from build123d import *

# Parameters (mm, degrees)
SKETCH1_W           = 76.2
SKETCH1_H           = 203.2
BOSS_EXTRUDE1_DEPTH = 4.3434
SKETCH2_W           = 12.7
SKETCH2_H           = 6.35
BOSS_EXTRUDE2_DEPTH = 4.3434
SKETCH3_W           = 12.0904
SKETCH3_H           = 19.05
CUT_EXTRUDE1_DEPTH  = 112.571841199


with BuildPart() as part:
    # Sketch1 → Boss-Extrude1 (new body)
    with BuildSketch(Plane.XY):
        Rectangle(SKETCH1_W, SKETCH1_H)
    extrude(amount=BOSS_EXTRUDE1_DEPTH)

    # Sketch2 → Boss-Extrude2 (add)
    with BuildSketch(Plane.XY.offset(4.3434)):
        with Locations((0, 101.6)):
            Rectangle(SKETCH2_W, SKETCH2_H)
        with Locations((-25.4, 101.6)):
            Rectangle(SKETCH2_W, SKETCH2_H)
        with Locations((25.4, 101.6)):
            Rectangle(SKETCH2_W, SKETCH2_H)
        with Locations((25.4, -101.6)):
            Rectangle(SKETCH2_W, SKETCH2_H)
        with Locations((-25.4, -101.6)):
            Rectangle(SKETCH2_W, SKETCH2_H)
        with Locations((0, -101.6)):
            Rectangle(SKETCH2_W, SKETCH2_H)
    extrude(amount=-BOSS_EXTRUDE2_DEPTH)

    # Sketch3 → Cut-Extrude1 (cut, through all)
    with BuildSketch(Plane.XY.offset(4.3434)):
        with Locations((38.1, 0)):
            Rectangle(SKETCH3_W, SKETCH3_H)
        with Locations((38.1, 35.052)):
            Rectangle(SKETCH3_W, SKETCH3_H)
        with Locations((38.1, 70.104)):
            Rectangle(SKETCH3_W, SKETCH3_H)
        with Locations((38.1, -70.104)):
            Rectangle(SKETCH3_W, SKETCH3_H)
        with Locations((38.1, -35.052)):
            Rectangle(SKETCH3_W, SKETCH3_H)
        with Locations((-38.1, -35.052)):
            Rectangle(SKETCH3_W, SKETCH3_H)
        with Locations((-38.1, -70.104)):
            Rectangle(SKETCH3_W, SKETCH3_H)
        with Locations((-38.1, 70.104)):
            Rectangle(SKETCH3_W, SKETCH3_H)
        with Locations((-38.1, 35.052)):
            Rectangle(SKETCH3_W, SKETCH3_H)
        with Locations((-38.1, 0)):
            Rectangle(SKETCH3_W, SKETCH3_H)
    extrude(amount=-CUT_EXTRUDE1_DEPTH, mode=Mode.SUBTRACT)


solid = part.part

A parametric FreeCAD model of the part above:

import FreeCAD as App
import Part
import Sketcher
from FreeCAD import Vector
Q = App.Units.Quantity

doc = App.newDocument("Part")
params = doc.addObject("Spreadsheet::Sheet", "Params")
for row, (alias, value) in enumerate([
    ("sketch1_width", "3 in"),
    ("sketch1_height", "8 in"),
    ("pad1_length", "0.171 in"),
    ("sketch2_width", "0.5 in"),
    ("sketch2_height", "0.25 in"),
    ("pad2_length", "0.171 in"),
    ("sketch3_height", "0.75 in"),
    ("sketch3_width", "0.476 in"),
], start=1):
    params.set(f"A{row}", alias)
    params.set(f"B{row}", "=" + value)
    params.setAlias(f"B{row}", alias)

body = doc.addObject("PartDesign::Body", "Body")

sketch1 = body.newObject("Sketcher::SketchObject", "Sketch")
sketch1.AttachmentSupport = (doc.getObject("XY_Plane"), [""])
sketch1.MapMode = "FlatFace"
sketch1.addGeometry(Part.LineSegment(Vector(-38.1, 101.6, 0), Vector(-38.1, -101.6, 0)), False)
sketch1.addGeometry(Part.LineSegment(Vector(-38.1, -101.6, 0), Vector(38.1, -101.6, 0)), False)
sketch1.addGeometry(Part.LineSegment(Vector(38.1, -101.6, 0), Vector(38.1, 101.6, 0)), False)
sketch1.addGeometry(Part.LineSegment(Vector(38.1, 101.6, 0), Vector(-38.1, 101.6, 0)), False)
sketch1.addConstraint(Sketcher.Constraint("Coincident", 0, 2, 1, 1))
sketch1.addConstraint(Sketcher.Constraint("Coincident", 1, 2, 2, 1))
sketch1.addConstraint(Sketcher.Constraint("Coincident", 2, 2, 3, 1))
sketch1.addConstraint(Sketcher.Constraint("Coincident", 3, 2, 0, 1))
sketch1.addConstraint(Sketcher.Constraint("Vertical", 0))
sketch1.addConstraint(Sketcher.Constraint("Horizontal", 1))
sketch1.addConstraint(Sketcher.Constraint("Vertical", 2))
sketch1.addConstraint(Sketcher.Constraint("Horizontal", 3))
sketch1.addConstraint(Sketcher.Constraint("Symmetric", 0, 2, 2, 2, -1, 1))
sketch1.addConstraint(Sketcher.Constraint("DistanceX", 1, 1, 1, 2, Q("3 in")))
sketch1.addConstraint(Sketcher.Constraint("DistanceY", 0, 2, 0, 1, Q("8 in")))
sketch1.setExpression("Constraints[9]", "Params.sketch1_width")
sketch1.setExpression("Constraints[10]", "Params.sketch1_height")
pad1 = body.newObject("PartDesign::Pad", "Pad")
pad1.Profile = sketch1
pad1.setExpression("Length", "Params.pad1_length")

sketch2 = body.newObject("Sketcher::SketchObject", "Sketch001")
sketch2.AttachmentSupport = (doc.getObject("XY_Plane"), [""])
sketch2.MapMode = "FlatFace"
sketch2.AttachmentOffset = App.Placement(Vector(0, 0, 0.171 * 25.4), App.Rotation())
sketch2.addGeometry(Part.LineSegment(Vector(-6.35, 104.775, 0), Vector(-6.35, 98.425, 0)), False)
sketch2.addGeometry(Part.LineSegment(Vector(-6.35, 98.425, 0), Vector(6.35, 98.425, 0)), False)
sketch2.addGeometry(Part.LineSegment(Vector(6.35, 98.425, 0), Vector(6.35, 104.775, 0)), False)
sketch2.addGeometry(Part.LineSegment(Vector(6.35, 104.775, 0), Vector(-6.35, 104.775, 0)), False)
sketch2.addGeometry(Part.LineSegment(Vector(-31.75, 104.775, 0), Vector(-31.75, 98.425, 0)), False)
sketch2.addGeometry(Part.LineSegment(Vector(-31.75, 98.425, 0), Vector(-19.05, 98.425, 0)), False)
sketch2.addGeometry(Part.LineSegment(Vector(-19.05, 98.425, 0), Vector(-19.05, 104.775, 0)), False)
sketch2.addGeometry(Part.LineSegment(Vector(-19.05, 104.775, 0), Vector(-31.75, 104.775, 0)), False)
sketch2.addGeometry(Part.LineSegment(Vector(19.05, 104.775, 0), Vector(19.05, 98.425, 0)), False)
sketch2.addGeometry(Part.LineSegment(Vector(19.05, 98.425, 0), Vector(31.75, 98.425, 0)), False)
sketch2.addGeometry(Part.LineSegment(Vector(31.75, 98.425, 0), Vector(31.75, 104.775, 0)), False)
sketch2.addGeometry(Part.LineSegment(Vector(31.75, 104.775, 0), Vector(19.05, 104.775, 0)), False)
sketch2.addGeometry(Part.LineSegment(Vector(19.05, -98.425, 0), Vector(19.05, -104.775, 0)), False)
sketch2.addGeometry(Part.LineSegment(Vector(19.05, -104.775, 0), Vector(31.75, -104.775, 0)), False)
sketch2.addGeometry(Part.LineSegment(Vector(31.75, -104.775, 0), Vector(31.75, -98.425, 0)), False)
sketch2.addGeometry(Part.LineSegment(Vector(31.75, -98.425, 0), Vector(19.05, -98.425, 0)), False)
sketch2.addGeometry(Part.LineSegment(Vector(-31.75, -98.425, 0), Vector(-31.75, -104.775, 0)), False)
sketch2.addGeometry(Part.LineSegment(Vector(-31.75, -104.775, 0), Vector(-19.05, -104.775, 0)), False)
sketch2.addGeometry(Part.LineSegment(Vector(-19.05, -104.775, 0), Vector(-19.05, -98.425, 0)), False)
sketch2.addGeometry(Part.LineSegment(Vector(-19.05, -98.425, 0), Vector(-31.75, -98.425, 0)), False)
sketch2.addGeometry(Part.LineSegment(Vector(-6.35, -98.425, 0), Vector(-6.35, -104.775, 0)), False)
sketch2.addGeometry(Part.LineSegment(Vector(-6.35, -104.775, 0), Vector(6.35, -104.775, 0)), False)
sketch2.addGeometry(Part.LineSegment(Vector(6.35, -104.775, 0), Vector(6.35, -98.425, 0)), False)
sketch2.addGeometry(Part.LineSegment(Vector(6.35, -98.425, 0), Vector(-6.35, -98.425, 0)), False)
sketch2.addConstraint(Sketcher.Constraint("Coincident", 0, 2, 1, 1))
sketch2.addConstraint(Sketcher.Constraint("Coincident", 1, 2, 2, 1))
sketch2.addConstraint(Sketcher.Constraint("Coincident", 2, 2, 3, 1))
sketch2.addConstraint(Sketcher.Constraint("Coincident", 3, 2, 0, 1))
sketch2.addConstraint(Sketcher.Constraint("Coincident", 4, 2, 5, 1))
sketch2.addConstraint(Sketcher.Constraint("Coincident", 5, 2, 6, 1))
sketch2.addConstraint(Sketcher.Constraint("Coincident", 6, 2, 7, 1))
sketch2.addConstraint(Sketcher.Constraint("Coincident", 7, 2, 4, 1))
sketch2.addConstraint(Sketcher.Constraint("Coincident", 8, 2, 9, 1))
sketch2.addConstraint(Sketcher.Constraint("Coincident", 9, 2, 10, 1))
sketch2.addConstraint(Sketcher.Constraint("Coincident", 10, 2, 11, 1))
sketch2.addConstraint(Sketcher.Constraint("Coincident", 11, 2, 8, 1))
sketch2.addConstraint(Sketcher.Constraint("Coincident", 12, 2, 13, 1))
sketch2.addConstraint(Sketcher.Constraint("Coincident", 13, 2, 14, 1))
sketch2.addConstraint(Sketcher.Constraint("Coincident", 14, 2, 15, 1))
sketch2.addConstraint(Sketcher.Constraint("Coincident", 15, 2, 12, 1))
sketch2.addConstraint(Sketcher.Constraint("Coincident", 16, 2, 17, 1))
sketch2.addConstraint(Sketcher.Constraint("Coincident", 17, 2, 18, 1))
sketch2.addConstraint(Sketcher.Constraint("Coincident", 18, 2, 19, 1))
sketch2.addConstraint(Sketcher.Constraint("Coincident", 19, 2, 16, 1))
sketch2.addConstraint(Sketcher.Constraint("Coincident", 20, 2, 21, 1))
sketch2.addConstraint(Sketcher.Constraint("Coincident", 21, 2, 22, 1))
sketch2.addConstraint(Sketcher.Constraint("Coincident", 22, 2, 23, 1))
sketch2.addConstraint(Sketcher.Constraint("Coincident", 23, 2, 20, 1))
sketch2.addConstraint(Sketcher.Constraint("Vertical", 0))
sketch2.addConstraint(Sketcher.Constraint("Horizontal", 1))
sketch2.addConstraint(Sketcher.Constraint("Vertical", 2))
sketch2.addConstraint(Sketcher.Constraint("Horizontal", 3))
sketch2.addConstraint(Sketcher.Constraint("Vertical", 4))
sketch2.addConstraint(Sketcher.Constraint("Horizontal", 5))
sketch2.addConstraint(Sketcher.Constraint("Vertical", 6))
sketch2.addConstraint(Sketcher.Constraint("Horizontal", 7))
sketch2.addConstraint(Sketcher.Constraint("Vertical", 8))
sketch2.addConstraint(Sketcher.Constraint("Horizontal", 9))
sketch2.addConstraint(Sketcher.Constraint("Vertical", 10))
sketch2.addConstraint(Sketcher.Constraint("Horizontal", 11))
sketch2.addConstraint(Sketcher.Constraint("Vertical", 12))
sketch2.addConstraint(Sketcher.Constraint("Horizontal", 13))
sketch2.addConstraint(Sketcher.Constraint("Vertical", 14))
sketch2.addConstraint(Sketcher.Constraint("Horizontal", 15))
sketch2.addConstraint(Sketcher.Constraint("Vertical", 16))
sketch2.addConstraint(Sketcher.Constraint("Horizontal", 17))
sketch2.addConstraint(Sketcher.Constraint("Vertical", 18))
sketch2.addConstraint(Sketcher.Constraint("Horizontal", 19))
sketch2.addConstraint(Sketcher.Constraint("Vertical", 20))
sketch2.addConstraint(Sketcher.Constraint("Horizontal", 21))
sketch2.addConstraint(Sketcher.Constraint("Vertical", 22))
sketch2.addConstraint(Sketcher.Constraint("Horizontal", 23))
sketch2.addConstraint(Sketcher.Constraint("Symmetric", 6, 2, 12, 2, -1, 1))
sketch2.addConstraint(Sketcher.Constraint("Symmetric", 4, 2, 14, 2, -1, 1))
sketch2.addConstraint(Sketcher.Constraint("Symmetric", 10, 2, 16, 2, -1, 1))
sketch2.addConstraint(Sketcher.Constraint("Symmetric", 8, 2, 18, 2, -1, 1))
sketch2.addConstraint(Sketcher.Constraint("Symmetric", 2, 2, 20, 2, -1, 1))
sketch2.addConstraint(Sketcher.Constraint("Symmetric", 0, 2, 22, 2, -1, 1))
sketch2.addConstraint(Sketcher.Constraint("Symmetric", 5, 2, 8, 2, -2))
sketch2.addConstraint(Sketcher.Constraint("Symmetric", 7, 2, 10, 2, -2))
sketch2.addConstraint(Sketcher.Constraint("Horizontal", 1, 2, 4, 2))
sketch2.addConstraint(Sketcher.Constraint("Horizontal", 3, 2, 6, 2))
sketch2.addConstraint(Sketcher.Constraint("Vertical", 3, 2, 20, 2))
sketch2.addConstraint(Sketcher.Constraint("Equal", 3, 5))
sketch2.addConstraint(Sketcher.Constraint("DistanceX", 1, 1, 1, 2, Q("0.5 in")))
sketch2.addConstraint(Sketcher.Constraint("DistanceX", 4, 2, 0, 2, Q("1 in")))
sketch2.addConstraint(Sketcher.Constraint("DistanceY", 12, 2, 8, 2, Q("8 in")))
sketch2.addConstraint(Sketcher.Constraint("DistanceY", 0, 2, 0, 1, Q("0.25 in")))
sketch2.setExpression("Constraints[60]", "Params.sketch2_width")
sketch2.setExpression("Constraints[63]", "Params.sketch2_height")
pad2 = body.newObject("PartDesign::Pad", "Pad001")
pad2.Profile = sketch2
pad2.setExpression("Length", "Params.pad2_length")
pad2.Reversed = True

sketch3 = body.newObject("Sketcher::SketchObject", "Sketch002")
sketch3.AttachmentSupport = (doc.getObject("XY_Plane"), [""])
sketch3.MapMode = "FlatFace"
sketch3.AttachmentOffset = App.Placement(Vector(0, 0, 0.171 * 25.4), App.Rotation())
sketch3.addGeometry(Part.LineSegment(Vector(32.0548, 9.525, 0), Vector(32.0548, -9.525, 0)), False)
sketch3.addGeometry(Part.LineSegment(Vector(32.0548, -9.525, 0), Vector(44.1452, -9.525, 0)), False)
sketch3.addGeometry(Part.LineSegment(Vector(44.1452, -9.525, 0), Vector(44.1452, 9.525, 0)), False)
sketch3.addGeometry(Part.LineSegment(Vector(44.1452, 9.525, 0), Vector(32.0548, 9.525, 0)), False)
sketch3.addGeometry(Part.LineSegment(Vector(32.0548, 44.577, 0), Vector(32.0548, 25.527, 0)), False)
sketch3.addGeometry(Part.LineSegment(Vector(32.0548, 25.527, 0), Vector(44.1452, 25.527, 0)), False)
sketch3.addGeometry(Part.LineSegment(Vector(44.1452, 25.527, 0), Vector(44.1452, 44.577, 0)), False)
sketch3.addGeometry(Part.LineSegment(Vector(44.1452, 44.577, 0), Vector(32.0548, 44.577, 0)), False)
sketch3.addGeometry(Part.LineSegment(Vector(32.0548, 79.629, 0), Vector(32.0548, 60.579, 0)), False)
sketch3.addGeometry(Part.LineSegment(Vector(32.0548, 60.579, 0), Vector(44.1452, 60.579, 0)), False)
sketch3.addGeometry(Part.LineSegment(Vector(44.1452, 60.579, 0), Vector(44.1452, 79.629, 0)), False)
sketch3.addGeometry(Part.LineSegment(Vector(44.1452, 79.629, 0), Vector(32.0548, 79.629, 0)), False)
sketch3.addGeometry(Part.LineSegment(Vector(32.0548, -60.579, 0), Vector(32.0548, -79.629, 0)), False)
sketch3.addGeometry(Part.LineSegment(Vector(32.0548, -79.629, 0), Vector(44.1452, -79.629, 0)), False)
sketch3.addGeometry(Part.LineSegment(Vector(44.1452, -79.629, 0), Vector(44.1452, -60.579, 0)), False)
sketch3.addGeometry(Part.LineSegment(Vector(44.1452, -60.579, 0), Vector(32.0548, -60.579, 0)), False)
sketch3.addGeometry(Part.LineSegment(Vector(32.0548, -25.527, 0), Vector(32.0548, -44.577, 0)), False)
sketch3.addGeometry(Part.LineSegment(Vector(32.0548, -44.577, 0), Vector(44.1452, -44.577, 0)), False)
sketch3.addGeometry(Part.LineSegment(Vector(44.1452, -44.577, 0), Vector(44.1452, -25.527, 0)), False)
sketch3.addGeometry(Part.LineSegment(Vector(44.1452, -25.527, 0), Vector(32.0548, -25.527, 0)), False)
sketch3.addGeometry(Part.LineSegment(Vector(-44.1452, -25.527, 0), Vector(-44.1452, -44.577, 0)), False)
sketch3.addGeometry(Part.LineSegment(Vector(-44.1452, -44.577, 0), Vector(-32.0548, -44.577, 0)), False)
sketch3.addGeometry(Part.LineSegment(Vector(-32.0548, -44.577, 0), Vector(-32.0548, -25.527, 0)), False)
sketch3.addGeometry(Part.LineSegment(Vector(-32.0548, -25.527, 0), Vector(-44.1452, -25.527, 0)), False)
sketch3.addGeometry(Part.LineSegment(Vector(-44.1452, -60.579, 0), Vector(-44.1452, -79.629, 0)), False)
sketch3.addGeometry(Part.LineSegment(Vector(-44.1452, -79.629, 0), Vector(-32.0548, -79.629, 0)), False)
sketch3.addGeometry(Part.LineSegment(Vector(-32.0548, -79.629, 0), Vector(-32.0548, -60.579, 0)), False)
sketch3.addGeometry(Part.LineSegment(Vector(-32.0548, -60.579, 0), Vector(-44.1452, -60.579, 0)), False)
sketch3.addGeometry(Part.LineSegment(Vector(-44.1452, 79.629, 0), Vector(-44.1452, 60.579, 0)), False)
sketch3.addGeometry(Part.LineSegment(Vector(-44.1452, 60.579, 0), Vector(-32.0548, 60.579, 0)), False)
sketch3.addGeometry(Part.LineSegment(Vector(-32.0548, 60.579, 0), Vector(-32.0548, 79.629, 0)), False)
sketch3.addGeometry(Part.LineSegment(Vector(-32.0548, 79.629, 0), Vector(-44.1452, 79.629, 0)), False)
sketch3.addGeometry(Part.LineSegment(Vector(-44.1452, 44.577, 0), Vector(-44.1452, 25.527, 0)), False)
sketch3.addGeometry(Part.LineSegment(Vector(-44.1452, 25.527, 0), Vector(-32.0548, 25.527, 0)), False)
sketch3.addGeometry(Part.LineSegment(Vector(-32.0548, 25.527, 0), Vector(-32.0548, 44.577, 0)), False)
sketch3.addGeometry(Part.LineSegment(Vector(-32.0548, 44.577, 0), Vector(-44.1452, 44.577, 0)), False)
sketch3.addGeometry(Part.LineSegment(Vector(-44.1452, 9.525, 0), Vector(-44.1452, -9.525, 0)), False)
sketch3.addGeometry(Part.LineSegment(Vector(-44.1452, -9.525, 0), Vector(-32.0548, -9.525, 0)), False)
sketch3.addGeometry(Part.LineSegment(Vector(-32.0548, -9.525, 0), Vector(-32.0548, 9.525, 0)), False)
sketch3.addGeometry(Part.LineSegment(Vector(-32.0548, 9.525, 0), Vector(-44.1452, 9.525, 0)), False)
sketch3.addConstraint(Sketcher.Constraint("Coincident", 0, 2, 1, 1))
sketch3.addConstraint(Sketcher.Constraint("Coincident", 1, 2, 2, 1))
sketch3.addConstraint(Sketcher.Constraint("Coincident", 2, 2, 3, 1))
sketch3.addConstraint(Sketcher.Constraint("Coincident", 3, 2, 0, 1))
sketch3.addConstraint(Sketcher.Constraint("Coincident", 4, 2, 5, 1))
sketch3.addConstraint(Sketcher.Constraint("Coincident", 5, 2, 6, 1))
sketch3.addConstraint(Sketcher.Constraint("Coincident", 6, 2, 7, 1))
sketch3.addConstraint(Sketcher.Constraint("Coincident", 7, 2, 4, 1))
sketch3.addConstraint(Sketcher.Constraint("Coincident", 8, 2, 9, 1))
sketch3.addConstraint(Sketcher.Constraint("Coincident", 9, 2, 10, 1))
sketch3.addConstraint(Sketcher.Constraint("Coincident", 10, 2, 11, 1))
sketch3.addConstraint(Sketcher.Constraint("Coincident", 11, 2, 8, 1))
sketch3.addConstraint(Sketcher.Constraint("Coincident", 12, 2, 13, 1))
sketch3.addConstraint(Sketcher.Constraint("Coincident", 13, 2, 14, 1))
sketch3.addConstraint(Sketcher.Constraint("Coincident", 14, 2, 15, 1))
sketch3.addConstraint(Sketcher.Constraint("Coincident", 15, 2, 12, 1))
sketch3.addConstraint(Sketcher.Constraint("Coincident", 16, 2, 17, 1))
sketch3.addConstraint(Sketcher.Constraint("Coincident", 17, 2, 18, 1))
sketch3.addConstraint(Sketcher.Constraint("Coincident", 18, 2, 19, 1))
sketch3.addConstraint(Sketcher.Constraint("Coincident", 19, 2, 16, 1))
sketch3.addConstraint(Sketcher.Constraint("Coincident", 20, 2, 21, 1))
sketch3.addConstraint(Sketcher.Constraint("Coincident", 21, 2, 22, 1))
sketch3.addConstraint(Sketcher.Constraint("Coincident", 22, 2, 23, 1))
sketch3.addConstraint(Sketcher.Constraint("Coincident", 23, 2, 20, 1))
sketch3.addConstraint(Sketcher.Constraint("Coincident", 24, 2, 25, 1))
sketch3.addConstraint(Sketcher.Constraint("Coincident", 25, 2, 26, 1))
sketch3.addConstraint(Sketcher.Constraint("Coincident", 26, 2, 27, 1))
sketch3.addConstraint(Sketcher.Constraint("Coincident", 27, 2, 24, 1))
sketch3.addConstraint(Sketcher.Constraint("Coincident", 28, 2, 29, 1))
sketch3.addConstraint(Sketcher.Constraint("Coincident", 29, 2, 30, 1))
sketch3.addConstraint(Sketcher.Constraint("Coincident", 30, 2, 31, 1))
sketch3.addConstraint(Sketcher.Constraint("Coincident", 31, 2, 28, 1))
sketch3.addConstraint(Sketcher.Constraint("Coincident", 32, 2, 33, 1))
sketch3.addConstraint(Sketcher.Constraint("Coincident", 33, 2, 34, 1))
sketch3.addConstraint(Sketcher.Constraint("Coincident", 34, 2, 35, 1))
sketch3.addConstraint(Sketcher.Constraint("Coincident", 35, 2, 32, 1))
sketch3.addConstraint(Sketcher.Constraint("Coincident", 36, 2, 37, 1))
sketch3.addConstraint(Sketcher.Constraint("Coincident", 37, 2, 38, 1))
sketch3.addConstraint(Sketcher.Constraint("Coincident", 38, 2, 39, 1))
sketch3.addConstraint(Sketcher.Constraint("Coincident", 39, 2, 36, 1))
sketch3.addConstraint(Sketcher.Constraint("Vertical", 0))
sketch3.addConstraint(Sketcher.Constraint("Horizontal", 1))
sketch3.addConstraint(Sketcher.Constraint("Vertical", 2))
sketch3.addConstraint(Sketcher.Constraint("Horizontal", 3))
sketch3.addConstraint(Sketcher.Constraint("Vertical", 4))
sketch3.addConstraint(Sketcher.Constraint("Horizontal", 5))
sketch3.addConstraint(Sketcher.Constraint("Vertical", 6))
sketch3.addConstraint(Sketcher.Constraint("Horizontal", 7))
sketch3.addConstraint(Sketcher.Constraint("Vertical", 8))
sketch3.addConstraint(Sketcher.Constraint("Horizontal", 9))
sketch3.addConstraint(Sketcher.Constraint("Vertical", 10))
sketch3.addConstraint(Sketcher.Constraint("Horizontal", 11))
sketch3.addConstraint(Sketcher.Constraint("Vertical", 12))
sketch3.addConstraint(Sketcher.Constraint("Horizontal", 13))
sketch3.addConstraint(Sketcher.Constraint("Vertical", 14))
sketch3.addConstraint(Sketcher.Constraint("Horizontal", 15))
sketch3.addConstraint(Sketcher.Constraint("Vertical", 16))
sketch3.addConstraint(Sketcher.Constraint("Horizontal", 17))
sketch3.addConstraint(Sketcher.Constraint("Vertical", 18))
sketch3.addConstraint(Sketcher.Constraint("Horizontal", 19))
sketch3.addConstraint(Sketcher.Constraint("Vertical", 20))
sketch3.addConstraint(Sketcher.Constraint("Horizontal", 21))
sketch3.addConstraint(Sketcher.Constraint("Vertical", 22))
sketch3.addConstraint(Sketcher.Constraint("Horizontal", 23))
sketch3.addConstraint(Sketcher.Constraint("Vertical", 24))
sketch3.addConstraint(Sketcher.Constraint("Horizontal", 25))
sketch3.addConstraint(Sketcher.Constraint("Vertical", 26))
sketch3.addConstraint(Sketcher.Constraint("Horizontal", 27))
sketch3.addConstraint(Sketcher.Constraint("Vertical", 28))
sketch3.addConstraint(Sketcher.Constraint("Horizontal", 29))
sketch3.addConstraint(Sketcher.Constraint("Vertical", 30))
sketch3.addConstraint(Sketcher.Constraint("Horizontal", 31))
sketch3.addConstraint(Sketcher.Constraint("Vertical", 32))
sketch3.addConstraint(Sketcher.Constraint("Horizontal", 33))
sketch3.addConstraint(Sketcher.Constraint("Vertical", 34))
sketch3.addConstraint(Sketcher.Constraint("Horizontal", 35))
sketch3.addConstraint(Sketcher.Constraint("Vertical", 36))
sketch3.addConstraint(Sketcher.Constraint("Horizontal", 37))
sketch3.addConstraint(Sketcher.Constraint("Vertical", 38))
sketch3.addConstraint(Sketcher.Constraint("Horizontal", 39))
sketch3.addConstraint(Sketcher.Constraint("Symmetric", 6, 2, 20, 2, -1, 1))
sketch3.addConstraint(Sketcher.Constraint("Symmetric", 4, 2, 22, 2, -1, 1))
sketch3.addConstraint(Sketcher.Constraint("Symmetric", 10, 2, 24, 2, -1, 1))
sketch3.addConstraint(Sketcher.Constraint("Symmetric", 8, 2, 26, 2, -1, 1))
sketch3.addConstraint(Sketcher.Constraint("Symmetric", 14, 2, 28, 2, -1, 1))
sketch3.addConstraint(Sketcher.Constraint("Symmetric", 12, 2, 30, 2, -1, 1))
sketch3.addConstraint(Sketcher.Constraint("Symmetric", 18, 2, 32, 2, -1, 1))
sketch3.addConstraint(Sketcher.Constraint("Symmetric", 16, 2, 34, 2, -1, 1))
sketch3.addConstraint(Sketcher.Constraint("Symmetric", 2, 2, 36, 2, -1, 1))
sketch3.addConstraint(Sketcher.Constraint("Symmetric", 0, 2, 38, 2, -1, 1))
sketch3.addConstraint(Sketcher.Constraint("Symmetric", 17, 2, 20, 2, -2))
sketch3.addConstraint(Sketcher.Constraint("Symmetric", 19, 2, 22, 2, -2))
sketch3.addConstraint(Sketcher.Constraint("Symmetric", 13, 2, 24, 2, -2))
sketch3.addConstraint(Sketcher.Constraint("Symmetric", 15, 2, 26, 2, -2))
sketch3.addConstraint(Sketcher.Constraint("Horizontal", 1, 2, 36, 2))
sketch3.addConstraint(Sketcher.Constraint("Vertical", 3, 2, 4, 2))
sketch3.addConstraint(Sketcher.Constraint("Vertical", 2, 2, 5, 2))
sketch3.addConstraint(Sketcher.Constraint("Vertical", 7, 2, 8, 2))
sketch3.addConstraint(Sketcher.Constraint("Vertical", 6, 2, 9, 2))
sketch3.addConstraint(Sketcher.Constraint("Equal", 2, 4))
sketch3.addConstraint(Sketcher.Constraint("Equal", 6, 8))
sketch3.addConstraint(Sketcher.Constraint("DistanceX", 20, 2, 16, 2, Q("3 in")))
sketch3.addConstraint(Sketcher.Constraint("DistanceY", 0, 2, 0, 1, Q("0.75 in")))
sketch3.addConstraint(Sketcher.Constraint("DistanceX", 1, 1, 1, 2, Q("0.476 in")))
sketch3.addConstraint(Sketcher.Constraint("DistanceY", 3, 2, 4, 2, Q("0.63 in")))
sketch3.addConstraint(Sketcher.Constraint("DistanceY", 7, 2, 8, 2, Q("0.63 in")))
sketch3.setExpression("Constraints[102]", "Params.sketch3_height")
sketch3.setExpression("Constraints[103]", "Params.sketch3_width")
pocket1 = body.newObject("PartDesign::Pocket", "Pocket")
pocket1.Profile = sketch3
pocket1.Type = "ThroughAll"

doc.recompute()
